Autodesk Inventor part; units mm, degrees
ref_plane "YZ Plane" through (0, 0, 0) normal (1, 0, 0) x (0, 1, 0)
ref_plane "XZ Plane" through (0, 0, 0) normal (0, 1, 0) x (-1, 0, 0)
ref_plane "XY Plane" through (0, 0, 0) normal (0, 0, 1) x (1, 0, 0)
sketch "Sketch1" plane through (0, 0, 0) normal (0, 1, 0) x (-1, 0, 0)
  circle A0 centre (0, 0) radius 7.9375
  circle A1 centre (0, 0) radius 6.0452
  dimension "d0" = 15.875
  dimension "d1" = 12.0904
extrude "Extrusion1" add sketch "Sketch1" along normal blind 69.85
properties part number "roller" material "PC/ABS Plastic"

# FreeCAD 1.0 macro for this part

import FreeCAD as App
import Part
import Sketcher
from FreeCAD import Vector
Q = App.Units.Quantity

doc = App.newDocument("Part")
body = doc.addObject("PartDesign::Body", "Body")

sketch1 = body.newObject("Sketcher::SketchObject", "Sketch")
sketch1.AttachmentSupport = (doc.getObject("XZ_Plane"), [""])
sketch1.MapMode = "FlatFace"
sketch1.addGeometry([
    Part.Circle(Vector(0, 0, 0), Vector(0, 0, 1), 8),
    Part.Circle(Vector(0, 0, 0), Vector(0, 0, 1), 6),
], False)
sketch1.addConstraint([
    Sketcher.Constraint("Coincident", 0, 3, -1, 1),
    Sketcher.Constraint("Coincident", 1, 3, -1, 1),
    Sketcher.Constraint("Diameter", 0, Q("0.625 in")),
    Sketcher.Constraint("Diameter", 1, Q("0.476 in")),
])
pad1 = body.newObject("PartDesign::Pad", "Pad")
pad1.Profile = sketch1
pad1.Length = Q("2.75 in")
pad1.Reversed = True

doc.recompute()
